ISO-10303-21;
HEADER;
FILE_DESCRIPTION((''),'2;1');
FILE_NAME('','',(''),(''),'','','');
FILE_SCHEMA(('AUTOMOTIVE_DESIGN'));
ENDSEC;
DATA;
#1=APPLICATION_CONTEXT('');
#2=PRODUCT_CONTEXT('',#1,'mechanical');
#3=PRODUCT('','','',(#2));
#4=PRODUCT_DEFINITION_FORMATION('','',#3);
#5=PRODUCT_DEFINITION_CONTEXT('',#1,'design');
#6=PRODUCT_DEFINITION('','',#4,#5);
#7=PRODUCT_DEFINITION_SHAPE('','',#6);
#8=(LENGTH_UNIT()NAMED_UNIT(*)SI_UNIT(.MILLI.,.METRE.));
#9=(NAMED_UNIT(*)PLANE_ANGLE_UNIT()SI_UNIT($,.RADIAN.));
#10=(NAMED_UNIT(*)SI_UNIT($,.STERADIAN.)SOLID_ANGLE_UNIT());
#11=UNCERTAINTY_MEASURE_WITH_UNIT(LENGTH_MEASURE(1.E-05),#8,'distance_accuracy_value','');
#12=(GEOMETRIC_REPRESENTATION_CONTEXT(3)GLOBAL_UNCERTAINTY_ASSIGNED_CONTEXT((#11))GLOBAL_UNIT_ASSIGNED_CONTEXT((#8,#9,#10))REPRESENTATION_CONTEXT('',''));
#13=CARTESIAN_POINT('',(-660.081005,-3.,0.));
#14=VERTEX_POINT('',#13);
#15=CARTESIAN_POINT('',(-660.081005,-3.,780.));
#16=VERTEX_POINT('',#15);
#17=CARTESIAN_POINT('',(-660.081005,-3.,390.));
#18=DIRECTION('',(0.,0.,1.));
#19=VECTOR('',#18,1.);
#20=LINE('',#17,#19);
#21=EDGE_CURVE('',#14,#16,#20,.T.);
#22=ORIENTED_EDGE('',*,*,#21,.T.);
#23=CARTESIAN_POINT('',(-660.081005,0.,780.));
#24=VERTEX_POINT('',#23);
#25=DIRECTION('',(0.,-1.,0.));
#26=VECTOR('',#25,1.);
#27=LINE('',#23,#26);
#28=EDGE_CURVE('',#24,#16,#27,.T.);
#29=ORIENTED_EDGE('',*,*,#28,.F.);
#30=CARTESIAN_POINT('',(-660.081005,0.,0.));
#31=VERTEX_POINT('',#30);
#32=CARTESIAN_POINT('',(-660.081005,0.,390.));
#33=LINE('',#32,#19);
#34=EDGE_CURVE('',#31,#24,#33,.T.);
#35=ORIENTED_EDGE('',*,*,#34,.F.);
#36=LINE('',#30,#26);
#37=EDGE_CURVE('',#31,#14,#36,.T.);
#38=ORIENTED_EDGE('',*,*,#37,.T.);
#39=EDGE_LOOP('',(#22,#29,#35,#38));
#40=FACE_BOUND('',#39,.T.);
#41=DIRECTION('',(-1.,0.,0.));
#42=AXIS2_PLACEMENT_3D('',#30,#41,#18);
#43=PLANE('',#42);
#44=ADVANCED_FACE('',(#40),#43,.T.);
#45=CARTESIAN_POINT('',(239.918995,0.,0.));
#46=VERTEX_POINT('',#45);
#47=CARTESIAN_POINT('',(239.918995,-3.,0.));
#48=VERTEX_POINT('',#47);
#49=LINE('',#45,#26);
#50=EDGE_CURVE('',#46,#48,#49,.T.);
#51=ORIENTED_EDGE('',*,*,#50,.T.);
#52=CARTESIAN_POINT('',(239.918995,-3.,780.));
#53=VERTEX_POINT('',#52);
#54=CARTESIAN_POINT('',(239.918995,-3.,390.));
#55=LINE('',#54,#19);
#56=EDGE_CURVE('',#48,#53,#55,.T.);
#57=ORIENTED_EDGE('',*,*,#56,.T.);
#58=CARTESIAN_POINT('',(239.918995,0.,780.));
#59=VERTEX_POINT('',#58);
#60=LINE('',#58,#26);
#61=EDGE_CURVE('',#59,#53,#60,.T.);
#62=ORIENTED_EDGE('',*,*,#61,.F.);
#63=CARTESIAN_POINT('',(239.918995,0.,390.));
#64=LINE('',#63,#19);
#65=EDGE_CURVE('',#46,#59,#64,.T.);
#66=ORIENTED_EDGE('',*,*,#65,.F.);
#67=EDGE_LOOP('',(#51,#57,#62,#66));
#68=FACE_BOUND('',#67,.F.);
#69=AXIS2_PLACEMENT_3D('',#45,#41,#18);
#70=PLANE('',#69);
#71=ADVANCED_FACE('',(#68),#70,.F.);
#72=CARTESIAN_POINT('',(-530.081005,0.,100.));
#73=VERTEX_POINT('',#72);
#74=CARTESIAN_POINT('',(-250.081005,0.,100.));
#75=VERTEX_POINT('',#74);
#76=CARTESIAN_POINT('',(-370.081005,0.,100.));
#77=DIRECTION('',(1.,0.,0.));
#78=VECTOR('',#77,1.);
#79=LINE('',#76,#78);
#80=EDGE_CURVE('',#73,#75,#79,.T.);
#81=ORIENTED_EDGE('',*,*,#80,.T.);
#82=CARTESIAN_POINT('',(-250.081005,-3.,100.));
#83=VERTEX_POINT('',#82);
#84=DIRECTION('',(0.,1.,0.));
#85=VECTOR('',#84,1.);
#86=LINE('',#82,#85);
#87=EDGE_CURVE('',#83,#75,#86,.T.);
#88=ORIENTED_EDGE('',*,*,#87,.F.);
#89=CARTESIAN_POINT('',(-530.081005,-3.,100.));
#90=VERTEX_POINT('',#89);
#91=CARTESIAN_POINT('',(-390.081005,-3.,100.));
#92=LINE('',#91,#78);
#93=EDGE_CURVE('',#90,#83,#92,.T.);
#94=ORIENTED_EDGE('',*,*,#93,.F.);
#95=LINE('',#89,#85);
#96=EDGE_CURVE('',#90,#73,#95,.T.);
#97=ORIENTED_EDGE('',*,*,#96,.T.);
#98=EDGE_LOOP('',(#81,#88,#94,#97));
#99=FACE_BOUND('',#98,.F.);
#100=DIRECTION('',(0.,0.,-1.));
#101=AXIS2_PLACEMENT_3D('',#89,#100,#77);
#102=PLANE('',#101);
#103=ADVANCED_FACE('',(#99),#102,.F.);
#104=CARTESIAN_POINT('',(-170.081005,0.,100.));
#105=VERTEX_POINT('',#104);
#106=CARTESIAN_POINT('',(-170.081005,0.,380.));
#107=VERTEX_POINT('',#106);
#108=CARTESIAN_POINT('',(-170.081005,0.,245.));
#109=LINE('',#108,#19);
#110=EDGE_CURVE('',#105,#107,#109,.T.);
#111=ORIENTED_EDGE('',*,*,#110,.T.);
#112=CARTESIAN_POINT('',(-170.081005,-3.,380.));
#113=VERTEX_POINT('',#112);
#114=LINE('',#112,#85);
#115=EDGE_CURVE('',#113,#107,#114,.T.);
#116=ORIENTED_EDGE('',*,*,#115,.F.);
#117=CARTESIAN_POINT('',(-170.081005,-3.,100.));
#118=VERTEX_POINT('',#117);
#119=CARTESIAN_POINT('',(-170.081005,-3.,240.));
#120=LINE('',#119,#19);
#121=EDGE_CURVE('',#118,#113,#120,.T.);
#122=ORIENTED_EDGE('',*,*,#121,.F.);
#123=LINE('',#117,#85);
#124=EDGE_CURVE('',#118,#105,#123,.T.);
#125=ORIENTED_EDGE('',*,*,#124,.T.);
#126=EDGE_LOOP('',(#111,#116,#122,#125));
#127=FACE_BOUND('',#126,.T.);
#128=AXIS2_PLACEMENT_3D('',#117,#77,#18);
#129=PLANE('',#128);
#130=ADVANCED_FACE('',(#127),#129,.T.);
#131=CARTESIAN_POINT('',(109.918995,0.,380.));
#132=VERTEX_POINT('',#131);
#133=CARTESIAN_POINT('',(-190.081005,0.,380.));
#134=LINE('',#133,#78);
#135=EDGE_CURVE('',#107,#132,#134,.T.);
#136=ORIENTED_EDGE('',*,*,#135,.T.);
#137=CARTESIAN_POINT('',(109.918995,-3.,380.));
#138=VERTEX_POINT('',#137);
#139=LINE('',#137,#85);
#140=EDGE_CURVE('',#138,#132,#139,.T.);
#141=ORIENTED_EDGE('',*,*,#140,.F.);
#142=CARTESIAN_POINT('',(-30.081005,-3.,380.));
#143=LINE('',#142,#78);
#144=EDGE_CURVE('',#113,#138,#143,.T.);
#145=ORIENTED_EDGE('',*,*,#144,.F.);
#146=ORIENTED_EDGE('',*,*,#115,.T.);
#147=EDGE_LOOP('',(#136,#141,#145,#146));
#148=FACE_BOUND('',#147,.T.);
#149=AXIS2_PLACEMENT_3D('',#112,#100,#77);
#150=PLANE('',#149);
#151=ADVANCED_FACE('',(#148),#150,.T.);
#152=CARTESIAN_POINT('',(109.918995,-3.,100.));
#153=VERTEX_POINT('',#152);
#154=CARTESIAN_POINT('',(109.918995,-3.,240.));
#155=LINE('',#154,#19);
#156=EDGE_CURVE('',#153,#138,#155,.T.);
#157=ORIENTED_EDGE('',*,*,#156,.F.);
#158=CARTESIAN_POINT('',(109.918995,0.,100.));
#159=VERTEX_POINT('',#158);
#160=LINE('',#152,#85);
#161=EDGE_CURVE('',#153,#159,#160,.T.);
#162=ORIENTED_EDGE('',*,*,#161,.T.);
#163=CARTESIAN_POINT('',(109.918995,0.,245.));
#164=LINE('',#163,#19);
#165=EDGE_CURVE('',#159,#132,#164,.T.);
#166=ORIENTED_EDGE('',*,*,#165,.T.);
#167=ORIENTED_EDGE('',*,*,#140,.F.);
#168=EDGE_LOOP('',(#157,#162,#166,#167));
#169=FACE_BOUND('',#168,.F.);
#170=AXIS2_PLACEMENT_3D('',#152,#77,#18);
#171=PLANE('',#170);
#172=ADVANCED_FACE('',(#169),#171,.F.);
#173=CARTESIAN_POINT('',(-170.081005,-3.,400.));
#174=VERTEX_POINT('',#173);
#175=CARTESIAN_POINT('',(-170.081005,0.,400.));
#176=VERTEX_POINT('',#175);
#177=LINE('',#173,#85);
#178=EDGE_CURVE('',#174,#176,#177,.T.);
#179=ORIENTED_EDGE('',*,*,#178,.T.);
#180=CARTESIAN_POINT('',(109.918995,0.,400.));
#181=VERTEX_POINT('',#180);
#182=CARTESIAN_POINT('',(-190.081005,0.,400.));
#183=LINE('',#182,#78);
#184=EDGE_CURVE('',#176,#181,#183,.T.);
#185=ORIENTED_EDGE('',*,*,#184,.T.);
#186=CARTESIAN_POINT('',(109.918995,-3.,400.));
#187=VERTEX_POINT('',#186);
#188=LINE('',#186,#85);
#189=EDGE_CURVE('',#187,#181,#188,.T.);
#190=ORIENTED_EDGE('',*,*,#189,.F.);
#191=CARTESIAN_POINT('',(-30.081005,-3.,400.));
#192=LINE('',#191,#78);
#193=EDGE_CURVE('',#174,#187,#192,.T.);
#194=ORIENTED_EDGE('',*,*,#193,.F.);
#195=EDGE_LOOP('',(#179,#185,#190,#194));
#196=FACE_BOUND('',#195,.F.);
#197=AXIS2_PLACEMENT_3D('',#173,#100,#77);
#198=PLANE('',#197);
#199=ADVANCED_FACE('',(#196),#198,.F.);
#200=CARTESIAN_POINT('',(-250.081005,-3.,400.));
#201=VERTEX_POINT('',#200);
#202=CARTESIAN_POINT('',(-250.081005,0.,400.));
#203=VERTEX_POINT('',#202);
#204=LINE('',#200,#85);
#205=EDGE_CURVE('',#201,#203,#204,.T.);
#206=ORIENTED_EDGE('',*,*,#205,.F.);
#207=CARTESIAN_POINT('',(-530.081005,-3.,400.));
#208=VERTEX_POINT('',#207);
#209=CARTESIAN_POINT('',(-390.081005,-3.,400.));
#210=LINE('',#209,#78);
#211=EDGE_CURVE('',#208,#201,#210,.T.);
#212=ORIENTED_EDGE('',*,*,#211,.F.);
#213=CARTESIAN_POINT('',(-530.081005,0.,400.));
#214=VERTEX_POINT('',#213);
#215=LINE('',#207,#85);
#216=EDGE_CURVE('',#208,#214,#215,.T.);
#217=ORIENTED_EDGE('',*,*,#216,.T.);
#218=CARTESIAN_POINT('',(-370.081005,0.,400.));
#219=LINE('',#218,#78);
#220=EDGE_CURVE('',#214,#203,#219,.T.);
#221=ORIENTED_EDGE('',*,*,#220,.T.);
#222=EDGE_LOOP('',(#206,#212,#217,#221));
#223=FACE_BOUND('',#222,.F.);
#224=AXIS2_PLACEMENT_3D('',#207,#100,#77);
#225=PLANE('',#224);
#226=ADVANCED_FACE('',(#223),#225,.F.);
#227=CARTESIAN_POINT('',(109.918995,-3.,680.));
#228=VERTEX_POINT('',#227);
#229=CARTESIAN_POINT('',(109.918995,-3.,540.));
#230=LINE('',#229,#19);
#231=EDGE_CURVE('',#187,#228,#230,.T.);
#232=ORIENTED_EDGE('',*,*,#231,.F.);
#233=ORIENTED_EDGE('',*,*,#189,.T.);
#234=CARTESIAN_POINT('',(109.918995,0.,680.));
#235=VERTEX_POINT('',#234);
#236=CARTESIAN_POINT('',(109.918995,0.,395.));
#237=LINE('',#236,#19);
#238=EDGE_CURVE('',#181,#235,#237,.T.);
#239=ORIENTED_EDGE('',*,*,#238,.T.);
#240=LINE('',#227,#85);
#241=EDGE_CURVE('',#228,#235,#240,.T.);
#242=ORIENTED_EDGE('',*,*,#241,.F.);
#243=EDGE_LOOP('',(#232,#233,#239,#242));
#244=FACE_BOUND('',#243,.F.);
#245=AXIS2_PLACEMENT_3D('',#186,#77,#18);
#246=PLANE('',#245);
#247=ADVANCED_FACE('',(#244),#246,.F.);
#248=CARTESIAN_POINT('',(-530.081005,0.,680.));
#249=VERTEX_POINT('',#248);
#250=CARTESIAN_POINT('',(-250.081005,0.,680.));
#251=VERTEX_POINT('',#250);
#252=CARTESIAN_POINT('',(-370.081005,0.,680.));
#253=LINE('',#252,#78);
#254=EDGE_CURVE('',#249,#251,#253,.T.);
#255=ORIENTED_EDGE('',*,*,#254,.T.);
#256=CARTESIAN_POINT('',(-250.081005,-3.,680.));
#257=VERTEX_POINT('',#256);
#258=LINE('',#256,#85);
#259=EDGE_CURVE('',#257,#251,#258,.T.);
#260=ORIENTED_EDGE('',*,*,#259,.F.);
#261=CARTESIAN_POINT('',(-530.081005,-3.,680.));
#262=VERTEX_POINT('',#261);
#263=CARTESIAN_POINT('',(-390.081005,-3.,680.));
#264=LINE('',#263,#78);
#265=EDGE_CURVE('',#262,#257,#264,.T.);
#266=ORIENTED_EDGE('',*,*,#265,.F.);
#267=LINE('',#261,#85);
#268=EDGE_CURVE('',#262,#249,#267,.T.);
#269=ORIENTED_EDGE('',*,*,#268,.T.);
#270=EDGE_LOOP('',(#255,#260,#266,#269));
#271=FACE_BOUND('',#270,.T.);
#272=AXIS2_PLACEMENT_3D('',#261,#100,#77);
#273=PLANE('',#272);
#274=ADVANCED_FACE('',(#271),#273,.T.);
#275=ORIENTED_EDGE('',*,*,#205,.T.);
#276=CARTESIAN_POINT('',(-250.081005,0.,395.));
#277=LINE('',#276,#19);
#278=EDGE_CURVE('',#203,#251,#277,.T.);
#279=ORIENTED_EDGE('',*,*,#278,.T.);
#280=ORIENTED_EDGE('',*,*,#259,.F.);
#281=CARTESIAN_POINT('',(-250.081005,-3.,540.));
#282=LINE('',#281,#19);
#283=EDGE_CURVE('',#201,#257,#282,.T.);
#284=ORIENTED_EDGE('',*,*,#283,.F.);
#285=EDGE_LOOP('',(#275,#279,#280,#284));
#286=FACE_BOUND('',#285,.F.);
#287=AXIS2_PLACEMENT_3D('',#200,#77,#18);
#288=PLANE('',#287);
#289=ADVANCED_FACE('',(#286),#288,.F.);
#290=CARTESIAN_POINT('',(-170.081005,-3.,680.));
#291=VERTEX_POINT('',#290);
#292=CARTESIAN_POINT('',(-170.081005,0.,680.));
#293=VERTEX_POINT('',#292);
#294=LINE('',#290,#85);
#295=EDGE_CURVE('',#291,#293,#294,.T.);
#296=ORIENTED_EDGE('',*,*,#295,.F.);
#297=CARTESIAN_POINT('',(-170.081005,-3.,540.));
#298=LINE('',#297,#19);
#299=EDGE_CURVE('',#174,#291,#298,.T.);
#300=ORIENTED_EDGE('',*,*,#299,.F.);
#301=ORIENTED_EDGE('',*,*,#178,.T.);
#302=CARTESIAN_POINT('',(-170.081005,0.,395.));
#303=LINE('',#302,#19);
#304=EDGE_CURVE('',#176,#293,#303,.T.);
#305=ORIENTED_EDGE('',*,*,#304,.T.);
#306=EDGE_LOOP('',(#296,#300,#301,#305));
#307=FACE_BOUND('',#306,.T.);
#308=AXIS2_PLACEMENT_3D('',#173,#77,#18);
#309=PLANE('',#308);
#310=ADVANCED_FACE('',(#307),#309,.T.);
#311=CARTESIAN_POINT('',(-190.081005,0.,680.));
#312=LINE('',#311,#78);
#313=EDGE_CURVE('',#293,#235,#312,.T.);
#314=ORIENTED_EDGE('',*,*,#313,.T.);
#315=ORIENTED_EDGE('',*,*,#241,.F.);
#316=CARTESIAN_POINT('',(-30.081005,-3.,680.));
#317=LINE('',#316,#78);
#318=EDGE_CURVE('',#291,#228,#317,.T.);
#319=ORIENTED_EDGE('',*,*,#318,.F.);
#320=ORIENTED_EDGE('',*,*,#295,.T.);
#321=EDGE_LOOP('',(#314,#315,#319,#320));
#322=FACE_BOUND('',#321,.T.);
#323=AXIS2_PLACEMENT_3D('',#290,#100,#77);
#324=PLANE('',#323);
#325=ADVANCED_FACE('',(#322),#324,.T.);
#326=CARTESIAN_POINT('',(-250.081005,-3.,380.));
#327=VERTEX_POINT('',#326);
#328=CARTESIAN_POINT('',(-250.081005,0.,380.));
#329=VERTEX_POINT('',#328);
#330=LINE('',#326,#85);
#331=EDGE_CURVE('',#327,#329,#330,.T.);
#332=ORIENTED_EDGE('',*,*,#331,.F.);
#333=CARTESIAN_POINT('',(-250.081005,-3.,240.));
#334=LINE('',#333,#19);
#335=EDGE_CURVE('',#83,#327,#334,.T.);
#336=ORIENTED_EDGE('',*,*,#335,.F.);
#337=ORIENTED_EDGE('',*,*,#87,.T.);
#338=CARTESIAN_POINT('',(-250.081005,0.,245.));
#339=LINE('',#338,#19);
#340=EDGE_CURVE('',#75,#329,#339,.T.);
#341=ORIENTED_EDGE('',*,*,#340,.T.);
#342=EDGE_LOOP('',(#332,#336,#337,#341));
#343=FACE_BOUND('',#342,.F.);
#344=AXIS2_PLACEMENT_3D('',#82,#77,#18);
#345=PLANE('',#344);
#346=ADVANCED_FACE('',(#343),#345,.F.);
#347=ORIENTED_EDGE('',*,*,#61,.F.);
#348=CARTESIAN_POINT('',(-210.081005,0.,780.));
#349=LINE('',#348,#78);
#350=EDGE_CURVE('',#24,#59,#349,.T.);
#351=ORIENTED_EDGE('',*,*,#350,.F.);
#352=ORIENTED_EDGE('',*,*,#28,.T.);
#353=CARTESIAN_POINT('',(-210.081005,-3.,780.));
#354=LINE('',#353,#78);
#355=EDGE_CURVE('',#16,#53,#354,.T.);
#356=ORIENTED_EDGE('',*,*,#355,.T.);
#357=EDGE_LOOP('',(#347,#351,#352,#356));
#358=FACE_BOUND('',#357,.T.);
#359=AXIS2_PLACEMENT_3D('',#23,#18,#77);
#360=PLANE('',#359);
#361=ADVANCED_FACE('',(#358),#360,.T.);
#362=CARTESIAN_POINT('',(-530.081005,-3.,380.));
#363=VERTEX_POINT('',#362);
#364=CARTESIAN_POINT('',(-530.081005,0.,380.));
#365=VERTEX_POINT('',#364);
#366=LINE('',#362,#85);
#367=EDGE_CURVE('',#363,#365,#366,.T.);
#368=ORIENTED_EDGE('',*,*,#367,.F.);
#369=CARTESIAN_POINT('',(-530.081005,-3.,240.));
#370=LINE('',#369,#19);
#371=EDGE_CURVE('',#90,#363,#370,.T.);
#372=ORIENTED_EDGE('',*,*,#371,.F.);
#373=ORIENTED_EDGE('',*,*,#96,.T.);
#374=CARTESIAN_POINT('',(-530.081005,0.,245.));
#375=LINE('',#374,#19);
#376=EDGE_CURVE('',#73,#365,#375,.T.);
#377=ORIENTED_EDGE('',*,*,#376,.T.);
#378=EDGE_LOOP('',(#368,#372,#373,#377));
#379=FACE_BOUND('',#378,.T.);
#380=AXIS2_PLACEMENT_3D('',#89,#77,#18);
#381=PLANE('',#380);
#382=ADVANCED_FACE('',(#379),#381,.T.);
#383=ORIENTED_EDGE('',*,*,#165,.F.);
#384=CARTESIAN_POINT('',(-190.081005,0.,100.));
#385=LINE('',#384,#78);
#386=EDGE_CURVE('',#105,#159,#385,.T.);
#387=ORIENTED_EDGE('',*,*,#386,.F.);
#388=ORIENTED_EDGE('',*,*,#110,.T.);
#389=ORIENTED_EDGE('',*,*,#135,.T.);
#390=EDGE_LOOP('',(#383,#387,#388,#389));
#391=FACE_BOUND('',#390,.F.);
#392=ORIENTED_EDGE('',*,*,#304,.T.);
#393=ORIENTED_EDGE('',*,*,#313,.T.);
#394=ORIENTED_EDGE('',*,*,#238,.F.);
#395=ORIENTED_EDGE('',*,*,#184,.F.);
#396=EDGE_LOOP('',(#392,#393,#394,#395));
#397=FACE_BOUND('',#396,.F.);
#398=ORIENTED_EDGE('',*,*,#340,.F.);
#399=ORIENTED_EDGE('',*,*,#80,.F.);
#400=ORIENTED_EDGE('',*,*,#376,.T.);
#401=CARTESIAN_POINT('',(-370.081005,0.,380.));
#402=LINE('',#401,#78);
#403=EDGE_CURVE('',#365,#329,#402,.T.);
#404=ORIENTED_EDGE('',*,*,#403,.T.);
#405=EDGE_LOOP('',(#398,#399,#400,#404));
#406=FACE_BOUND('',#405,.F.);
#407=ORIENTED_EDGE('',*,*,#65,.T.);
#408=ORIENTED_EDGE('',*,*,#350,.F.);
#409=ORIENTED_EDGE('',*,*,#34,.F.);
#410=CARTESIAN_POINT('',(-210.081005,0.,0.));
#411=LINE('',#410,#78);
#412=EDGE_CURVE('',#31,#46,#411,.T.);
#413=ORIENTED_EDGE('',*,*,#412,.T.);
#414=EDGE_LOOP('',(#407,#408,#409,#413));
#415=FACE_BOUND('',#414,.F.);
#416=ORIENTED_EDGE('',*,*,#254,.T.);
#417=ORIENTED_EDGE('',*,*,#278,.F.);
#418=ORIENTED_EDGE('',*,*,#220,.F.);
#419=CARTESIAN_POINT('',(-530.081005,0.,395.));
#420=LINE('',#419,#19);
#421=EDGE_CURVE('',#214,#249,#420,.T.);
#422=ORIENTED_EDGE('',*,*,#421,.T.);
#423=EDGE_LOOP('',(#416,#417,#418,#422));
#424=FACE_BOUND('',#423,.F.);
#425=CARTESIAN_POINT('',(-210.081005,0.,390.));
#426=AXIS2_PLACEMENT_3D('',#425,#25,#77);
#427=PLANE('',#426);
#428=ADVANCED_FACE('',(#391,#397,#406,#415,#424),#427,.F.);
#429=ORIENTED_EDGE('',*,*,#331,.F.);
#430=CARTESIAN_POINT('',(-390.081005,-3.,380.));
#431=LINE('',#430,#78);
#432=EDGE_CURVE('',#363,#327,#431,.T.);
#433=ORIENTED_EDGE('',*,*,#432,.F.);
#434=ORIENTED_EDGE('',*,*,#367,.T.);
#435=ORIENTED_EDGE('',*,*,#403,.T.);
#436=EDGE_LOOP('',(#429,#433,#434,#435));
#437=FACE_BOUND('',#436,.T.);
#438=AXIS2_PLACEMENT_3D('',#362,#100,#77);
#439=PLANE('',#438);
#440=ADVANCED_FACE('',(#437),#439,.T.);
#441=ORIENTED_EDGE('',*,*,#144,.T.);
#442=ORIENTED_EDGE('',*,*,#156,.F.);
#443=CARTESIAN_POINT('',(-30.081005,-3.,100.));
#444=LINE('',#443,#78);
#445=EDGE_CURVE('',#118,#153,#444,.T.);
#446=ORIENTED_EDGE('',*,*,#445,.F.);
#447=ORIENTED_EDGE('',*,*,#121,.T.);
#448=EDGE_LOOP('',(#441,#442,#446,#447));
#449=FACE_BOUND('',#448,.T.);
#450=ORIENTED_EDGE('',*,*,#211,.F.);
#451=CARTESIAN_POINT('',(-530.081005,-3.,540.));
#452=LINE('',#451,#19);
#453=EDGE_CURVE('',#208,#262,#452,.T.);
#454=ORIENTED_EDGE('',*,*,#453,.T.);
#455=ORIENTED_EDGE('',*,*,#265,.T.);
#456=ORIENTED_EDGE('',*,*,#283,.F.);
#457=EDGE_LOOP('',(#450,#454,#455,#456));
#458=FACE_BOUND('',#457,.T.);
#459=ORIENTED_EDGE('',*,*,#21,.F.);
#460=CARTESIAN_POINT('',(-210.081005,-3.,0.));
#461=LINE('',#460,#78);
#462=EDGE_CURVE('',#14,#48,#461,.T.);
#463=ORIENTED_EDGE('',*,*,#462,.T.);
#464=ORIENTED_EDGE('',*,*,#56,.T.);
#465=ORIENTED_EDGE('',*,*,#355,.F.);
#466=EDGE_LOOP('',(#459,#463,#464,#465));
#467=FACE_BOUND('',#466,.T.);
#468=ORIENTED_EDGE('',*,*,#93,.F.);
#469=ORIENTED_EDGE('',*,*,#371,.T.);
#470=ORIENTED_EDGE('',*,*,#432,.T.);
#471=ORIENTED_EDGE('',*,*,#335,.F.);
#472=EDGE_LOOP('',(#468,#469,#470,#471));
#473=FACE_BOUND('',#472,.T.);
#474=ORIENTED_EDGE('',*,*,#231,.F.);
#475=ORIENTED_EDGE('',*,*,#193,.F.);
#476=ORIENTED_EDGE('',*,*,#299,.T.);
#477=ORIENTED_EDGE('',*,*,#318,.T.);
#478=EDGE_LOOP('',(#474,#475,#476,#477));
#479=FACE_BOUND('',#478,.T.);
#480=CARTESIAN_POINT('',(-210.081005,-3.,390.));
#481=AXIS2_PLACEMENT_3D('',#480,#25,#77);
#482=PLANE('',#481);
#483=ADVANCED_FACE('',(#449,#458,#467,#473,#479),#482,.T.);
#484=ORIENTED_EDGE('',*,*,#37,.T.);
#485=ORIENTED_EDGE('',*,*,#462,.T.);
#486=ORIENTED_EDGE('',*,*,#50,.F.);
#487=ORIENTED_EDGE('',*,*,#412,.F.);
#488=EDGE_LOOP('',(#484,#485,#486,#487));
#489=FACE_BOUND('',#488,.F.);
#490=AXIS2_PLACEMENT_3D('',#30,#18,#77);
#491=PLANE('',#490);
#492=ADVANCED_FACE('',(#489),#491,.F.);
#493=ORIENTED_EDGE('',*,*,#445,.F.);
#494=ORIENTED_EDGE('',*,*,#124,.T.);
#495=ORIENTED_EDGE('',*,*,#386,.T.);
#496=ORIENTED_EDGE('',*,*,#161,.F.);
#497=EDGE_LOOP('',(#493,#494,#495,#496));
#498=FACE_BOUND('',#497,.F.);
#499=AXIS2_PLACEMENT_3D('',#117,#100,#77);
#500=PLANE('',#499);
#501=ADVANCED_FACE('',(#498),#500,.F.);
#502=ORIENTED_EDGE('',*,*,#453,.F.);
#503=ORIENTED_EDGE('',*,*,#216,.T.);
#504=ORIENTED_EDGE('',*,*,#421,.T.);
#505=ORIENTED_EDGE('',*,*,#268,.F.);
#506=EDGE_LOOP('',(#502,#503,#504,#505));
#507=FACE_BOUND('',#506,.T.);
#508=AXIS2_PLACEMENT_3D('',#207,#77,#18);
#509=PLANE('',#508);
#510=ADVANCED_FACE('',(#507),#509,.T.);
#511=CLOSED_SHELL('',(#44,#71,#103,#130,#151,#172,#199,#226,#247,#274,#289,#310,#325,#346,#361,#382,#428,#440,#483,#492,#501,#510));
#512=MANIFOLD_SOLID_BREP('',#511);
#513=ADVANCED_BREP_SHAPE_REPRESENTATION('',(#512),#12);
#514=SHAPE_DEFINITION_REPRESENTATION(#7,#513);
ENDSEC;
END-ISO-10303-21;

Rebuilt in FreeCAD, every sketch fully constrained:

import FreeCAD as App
import Part
import Sketcher
from FreeCAD import Vector


def add_polygon(sketch, points):
    """Adds a closed chain of lines whose ends are joined by coincident constraints."""
    first, n = sketch.GeometryCount, len(points)
    for a, b in zip(points, points[1:] + points[:1]):
        sketch.addGeometry(Part.LineSegment(App.Vector(*a, 0), App.Vector(*b, 0)), False)
    for i in range(n):
        sketch.addConstraint(Sketcher.Constraint("Coincident", first + i, 2, first + (i + 1) % n, 1))

doc = App.newDocument("Part")
body = doc.addObject("PartDesign::Body", "Body")

sketch1 = body.newObject("Sketcher::SketchObject", "Sketch")
sketch1.AttachmentSupport = (doc.getObject("XZ_Plane"), [""])
sketch1.MapMode = "FlatFace"
add_polygon(sketch1, [(-660, 780), (-660, 0), (240, 0), (240, 780)])
sketch1.addConstraint([
    Sketcher.Constraint("Vertical", 0),
    Sketcher.Constraint("Horizontal", 1),
    Sketcher.Constraint("Vertical", 2),
    Sketcher.Constraint("Horizontal", 3),
    Sketcher.Constraint("PointOnObject", 0, 2, -1),
    Sketcher.Constraint("DistanceX", 1, 1, 1, 2, 900.0),
    Sketcher.Constraint("DistanceY", 0, 2, 0, 1, 780.0),
    Sketcher.Constraint("DistanceX", 0, 2, -1, 1, 660.081005),
])
pad1 = body.newObject("PartDesign::Pad", "Pad")
pad1.Profile = sketch1
pad1.Length = 3

sketch2 = body.newObject("Sketcher::SketchObject", "Sketch001")
sketch2.AttachmentSupport = (doc.getObject("XZ_Plane"), [""])
sketch2.MapMode = "FlatFace"
sketch2.AttachmentOffset = App.Placement(Vector(0, 0, 3), App.Rotation())
add_polygon(sketch2, [(-530, 680), (-530, 400), (-250, 400), (-250, 680)])
add_polygon(sketch2, [(-170, 680), (-170, 400), (110, 400), (110, 680)])
add_polygon(sketch2, [(-170, 380), (-170, 100), (110, 100), (110, 380)])
add_polygon(sketch2, [(-530, 380), (-530, 100), (-250, 100), (-250, 380)])
sketch2.addConstraint([
    Sketcher.Constraint("Vertical", 0),
    Sketcher.Constraint("Horizontal", 1),
    Sketcher.Constraint("Vertical", 2),
    Sketcher.Constraint("Horizontal", 3),
    Sketcher.Constraint("Vertical", 4),
    Sketcher.Constraint("Horizontal", 5),
    Sketcher.Constraint("Vertical", 6),
    Sketcher.Constraint("Horizontal", 7),
    Sketcher.Constraint("Vertical", 8),
    Sketcher.Constraint("Horizontal", 9),
    Sketcher.Constraint("Vertical", 10),
    Sketcher.Constraint("Horizontal", 11),
    Sketcher.Constraint("Vertical", 12),
    Sketcher.Constraint("Horizontal", 13),
    Sketcher.Constraint("Vertical", 14),
    Sketcher.Constraint("Horizontal", 15),
    Sketcher.Constraint("Horizontal", 1, 2, 4, 2),
    Sketcher.Constraint("Horizontal", 3, 2, 6, 2),
    Sketcher.Constraint("Horizontal", 9, 2, 12, 2),
    Sketcher.Constraint("Horizontal", 11, 2, 14, 2),
    Sketcher.Constraint("Vertical", 7, 2, 8, 2),
    Sketcher.Constraint("Vertical", 6, 2, 9, 2),
    Sketcher.Constraint("Vertical", 3, 2, 12, 2),
    Sketcher.Constraint("Vertical", 2, 2, 13, 2),
    Sketcher.Constraint("Equal", 3, 5),
    Sketcher.Constraint("Equal", 15, 0),
    Sketcher.Constraint("Equal", 6, 8),
    Sketcher.Constraint("DistanceX", 1, 1, 1, 2, 280.0),
    Sketcher.Constraint("DistanceY", -1, 1, 0, 2, 400.0),
    Sketcher.Constraint("DistanceY", -1, 1, 8, 2, 100.0),
    Sketcher.Constraint("DistanceX", 1, 2, 4, 2, 80.0),
    Sketcher.Constraint("DistanceX", 0, 2, -1, 1, 530.081005),
])
pocket1 = body.newObject("PartDesign::Pocket", "Pocket")
pocket1.Profile = sketch2
pocket1.Length = 5

doc.recompute()
